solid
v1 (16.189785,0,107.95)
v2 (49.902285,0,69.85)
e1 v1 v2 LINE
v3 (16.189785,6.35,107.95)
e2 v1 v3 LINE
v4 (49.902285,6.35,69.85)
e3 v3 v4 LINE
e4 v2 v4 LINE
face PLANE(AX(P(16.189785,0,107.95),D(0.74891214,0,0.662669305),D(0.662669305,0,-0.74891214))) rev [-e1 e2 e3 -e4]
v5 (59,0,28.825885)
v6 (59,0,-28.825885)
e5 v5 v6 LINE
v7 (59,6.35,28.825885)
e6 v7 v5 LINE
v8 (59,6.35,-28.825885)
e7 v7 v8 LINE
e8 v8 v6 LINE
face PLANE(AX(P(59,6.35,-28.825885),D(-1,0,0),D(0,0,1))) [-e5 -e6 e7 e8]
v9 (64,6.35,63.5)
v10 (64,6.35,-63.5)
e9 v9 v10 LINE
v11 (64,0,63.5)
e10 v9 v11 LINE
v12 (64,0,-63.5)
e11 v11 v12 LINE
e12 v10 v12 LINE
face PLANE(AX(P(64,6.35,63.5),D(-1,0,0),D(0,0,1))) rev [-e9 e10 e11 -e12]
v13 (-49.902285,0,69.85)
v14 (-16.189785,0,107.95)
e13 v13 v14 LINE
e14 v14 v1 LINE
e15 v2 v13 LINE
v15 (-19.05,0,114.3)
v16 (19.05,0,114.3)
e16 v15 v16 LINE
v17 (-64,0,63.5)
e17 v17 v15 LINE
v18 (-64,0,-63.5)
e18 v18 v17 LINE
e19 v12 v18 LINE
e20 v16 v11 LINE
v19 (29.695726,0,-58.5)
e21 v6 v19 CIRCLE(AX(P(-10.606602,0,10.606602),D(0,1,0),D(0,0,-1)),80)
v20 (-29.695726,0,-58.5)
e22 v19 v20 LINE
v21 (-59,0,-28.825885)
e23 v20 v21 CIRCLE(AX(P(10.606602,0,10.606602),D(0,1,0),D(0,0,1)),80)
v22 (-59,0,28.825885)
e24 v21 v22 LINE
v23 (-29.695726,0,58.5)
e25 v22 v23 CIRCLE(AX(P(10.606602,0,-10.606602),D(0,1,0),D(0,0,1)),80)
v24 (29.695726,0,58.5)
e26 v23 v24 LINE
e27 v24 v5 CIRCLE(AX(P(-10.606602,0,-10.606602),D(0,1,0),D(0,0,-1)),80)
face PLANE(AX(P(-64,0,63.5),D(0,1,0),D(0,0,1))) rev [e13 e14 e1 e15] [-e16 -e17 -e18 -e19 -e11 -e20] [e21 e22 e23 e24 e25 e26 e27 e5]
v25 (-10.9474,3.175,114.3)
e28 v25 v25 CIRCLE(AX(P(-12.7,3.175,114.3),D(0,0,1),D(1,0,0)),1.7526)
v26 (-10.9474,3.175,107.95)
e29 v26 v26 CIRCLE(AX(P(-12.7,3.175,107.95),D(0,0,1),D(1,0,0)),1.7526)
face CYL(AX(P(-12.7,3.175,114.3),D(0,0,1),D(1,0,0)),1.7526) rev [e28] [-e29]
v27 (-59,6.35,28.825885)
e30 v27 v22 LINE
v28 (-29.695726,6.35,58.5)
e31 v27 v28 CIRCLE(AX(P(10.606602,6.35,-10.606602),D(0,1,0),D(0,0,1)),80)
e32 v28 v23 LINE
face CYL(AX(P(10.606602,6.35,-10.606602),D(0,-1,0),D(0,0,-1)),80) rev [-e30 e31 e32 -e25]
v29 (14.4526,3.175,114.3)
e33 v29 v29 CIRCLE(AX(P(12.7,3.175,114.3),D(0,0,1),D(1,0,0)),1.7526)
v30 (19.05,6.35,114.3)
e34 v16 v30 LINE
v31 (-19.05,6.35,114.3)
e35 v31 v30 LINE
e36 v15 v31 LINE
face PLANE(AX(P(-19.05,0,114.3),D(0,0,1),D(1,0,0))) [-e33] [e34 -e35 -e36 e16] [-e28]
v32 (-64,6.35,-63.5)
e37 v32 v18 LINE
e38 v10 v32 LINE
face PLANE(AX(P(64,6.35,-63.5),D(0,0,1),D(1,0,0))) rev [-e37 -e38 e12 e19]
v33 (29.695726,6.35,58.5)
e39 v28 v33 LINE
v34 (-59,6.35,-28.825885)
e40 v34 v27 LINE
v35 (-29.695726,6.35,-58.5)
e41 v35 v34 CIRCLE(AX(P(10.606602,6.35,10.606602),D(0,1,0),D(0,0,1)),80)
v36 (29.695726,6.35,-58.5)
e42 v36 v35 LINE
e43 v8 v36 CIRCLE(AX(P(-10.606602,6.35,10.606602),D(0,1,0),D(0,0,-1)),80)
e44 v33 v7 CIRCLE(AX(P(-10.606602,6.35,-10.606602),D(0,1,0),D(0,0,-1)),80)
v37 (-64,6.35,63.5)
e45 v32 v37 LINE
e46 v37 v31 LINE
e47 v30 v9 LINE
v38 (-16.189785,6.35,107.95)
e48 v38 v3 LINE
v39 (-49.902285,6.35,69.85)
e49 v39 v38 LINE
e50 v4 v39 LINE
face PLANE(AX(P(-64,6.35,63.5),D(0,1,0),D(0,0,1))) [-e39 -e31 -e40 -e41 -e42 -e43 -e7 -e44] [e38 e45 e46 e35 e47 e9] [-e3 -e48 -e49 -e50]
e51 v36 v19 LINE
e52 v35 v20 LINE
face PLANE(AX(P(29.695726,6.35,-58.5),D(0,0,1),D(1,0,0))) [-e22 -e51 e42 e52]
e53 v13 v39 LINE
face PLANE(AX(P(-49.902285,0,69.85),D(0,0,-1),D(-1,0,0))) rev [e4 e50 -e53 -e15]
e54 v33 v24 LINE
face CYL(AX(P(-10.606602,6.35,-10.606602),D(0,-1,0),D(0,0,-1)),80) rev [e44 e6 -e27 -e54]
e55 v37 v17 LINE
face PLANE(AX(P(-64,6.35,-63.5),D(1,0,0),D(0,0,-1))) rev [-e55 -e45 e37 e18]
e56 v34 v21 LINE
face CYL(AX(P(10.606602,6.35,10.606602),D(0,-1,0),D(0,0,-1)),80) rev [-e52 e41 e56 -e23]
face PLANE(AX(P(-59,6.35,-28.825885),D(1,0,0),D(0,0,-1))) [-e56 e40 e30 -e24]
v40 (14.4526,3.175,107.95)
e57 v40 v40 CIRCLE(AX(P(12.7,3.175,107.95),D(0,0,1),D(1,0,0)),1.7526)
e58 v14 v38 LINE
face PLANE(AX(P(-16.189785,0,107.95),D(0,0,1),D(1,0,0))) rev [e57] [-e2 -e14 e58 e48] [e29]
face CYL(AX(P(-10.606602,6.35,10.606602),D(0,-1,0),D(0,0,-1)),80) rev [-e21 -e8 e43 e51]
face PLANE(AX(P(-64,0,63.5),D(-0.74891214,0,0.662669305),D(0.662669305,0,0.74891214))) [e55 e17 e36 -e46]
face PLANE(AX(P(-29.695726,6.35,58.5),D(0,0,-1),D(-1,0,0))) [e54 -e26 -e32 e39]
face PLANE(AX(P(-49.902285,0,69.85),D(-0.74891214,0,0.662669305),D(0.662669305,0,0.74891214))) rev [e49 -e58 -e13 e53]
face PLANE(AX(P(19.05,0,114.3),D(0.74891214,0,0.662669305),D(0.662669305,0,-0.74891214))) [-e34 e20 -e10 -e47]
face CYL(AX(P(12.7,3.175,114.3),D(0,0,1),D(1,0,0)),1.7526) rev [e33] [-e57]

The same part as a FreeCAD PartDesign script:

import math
import FreeCAD as App
import Part
import Sketcher
Q = App.Units.Quantity

doc = App.newDocument("Part")
body = doc.addObject("PartDesign::Body", "Body")

# Sketch on XZ plane
sketch1 = body.newObject("Sketcher::SketchObject", "Sketch")
sketch1.AttachmentSupport = (doc.getObject("XZ_Plane"), [""])
sketch1.MapMode = "FlatFace"
sketch1.addGeometry([
    Part.LineSegment(App.Vector(-64, -64, 0), App.Vector(-64, 64, 0)),  # 0
    Part.LineSegment(App.Vector(-64, 64, 0), App.Vector(64, 64, 0)),  # 1
    Part.LineSegment(App.Vector(64, 64, 0), App.Vector(64, -64, 0)),  # 2
    Part.LineSegment(App.Vector(64, -64, 0), App.Vector(-64, -64, 0)),  # 3
    Part.LineSegment(App.Vector(-30, -58, 0), App.Vector(30, -58, 0)),  # 4
    Part.ArcOfCircle(Part.Circle(App.Vector(-11, 11, 0), App.Vector(0, 0, 1), 80), math.radians(-60), math.radians(-30)),  # 5
    Part.LineSegment(App.Vector(59, -29, 0), App.Vector(59, 29, 0)),  # 6
    Part.ArcOfCircle(Part.Circle(App.Vector(-11, -11, 0), App.Vector(0, 0, 1), 80), math.radians(30), math.radians(60)),  # 7
    Part.LineSegment(App.Vector(30, 58, 0), App.Vector(-30, 58, 0)),  # 8
    Part.ArcOfCircle(Part.Circle(App.Vector(11, -11, 0), App.Vector(0, 0, 1), 80), math.radians(120), math.radians(150)),  # 9
    Part.LineSegment(App.Vector(-59, 29, 0), App.Vector(-59, -29, 0)),  # 10
    Part.ArcOfCircle(Part.Circle(App.Vector(11, 11, 0), App.Vector(0, 0, 1), 80), math.radians(-150), math.radians(-120)),  # 11
], False)
sketch1.addConstraint([
    Sketcher.Constraint("Coincident", 0, 2, 1, 1),
    Sketcher.Constraint("Coincident", 1, 2, 2, 1),
    Sketcher.Constraint("Coincident", 2, 2, 3, 1),
    Sketcher.Constraint("Coincident", 3, 2, 0, 1),
    Sketcher.Constraint("Coincident", 4, 2, 5, 1),
    Sketcher.Constraint("Coincident", 5, 2, 6, 1),
    Sketcher.Constraint("Coincident", 6, 2, 7, 1),
    Sketcher.Constraint("Coincident", 7, 2, 8, 1),
    Sketcher.Constraint("Coincident", 8, 2, 9, 1),
    Sketcher.Constraint("Coincident", 9, 2, 10, 1),
    Sketcher.Constraint("Coincident", 10, 2, 11, 1),
    Sketcher.Constraint("Coincident", 11, 2, 4, 1),
    Sketcher.Constraint("Vertical", 0),
    Sketcher.Constraint("Horizontal", 1),
    Sketcher.Constraint("Vertical", 2),
    Sketcher.Constraint("Horizontal", 3),
    Sketcher.Constraint("Horizontal", 4),
    Sketcher.Constraint("Vertical", 6),
    Sketcher.Constraint("Horizontal", 8),
    Sketcher.Constraint("Vertical", 10),
    Sketcher.Constraint("Equal", 5, 7),
    Sketcher.Constraint("Equal", 7, 9),
    Sketcher.Constraint("Equal", 9, 11),
    Sketcher.Constraint("Symmetric", 5, 3, 9, 3, -1, 1),
    Sketcher.Constraint("Symmetric", 7, 3, 11, 3, -1, 1),
    Sketcher.Constraint("Symmetric", 0, 2, 2, 2, -1, 1),
    Sketcher.Constraint("Symmetric", 7, 3, 9, 3, -2),
    Sketcher.Constraint("Horizontal", 6, 2, 9, 2),
    Sketcher.Constraint("Vertical", 4, 2, 7, 2),
    Sketcher.Constraint("DistanceY", 0, 1, 0, 2, Q("5 in")),
    Sketcher.Constraint("Radius", 5, Q("80 mm")),
    Sketcher.Constraint("DistanceX", 1, 1, 1, 2, Q("128 mm")),
    Sketcher.Constraint("DistanceX", 4, 1, 4, 2, Q("59.391451 mm")),
    Sketcher.Constraint("DistanceY", 6, 1, 6, 2, Q("57.65177 mm")),
    Sketcher.Constraint("DistanceX", 5, 3, -1, 1, Q("10.606602 mm")),
    Sketcher.Constraint("DistanceY", -1, 1, 5, 3, Q("10.606602 mm")),
])
pad1 = body.newObject("PartDesign::Pad", "Pad")
pad1.Profile = sketch1
pad1.Length = Q("0.25 in")
pad1.Reversed = True

# Sketch on XZ plane
sketch2 = body.newObject("Sketcher::SketchObject", "Sketch001")
sketch2.AttachmentSupport = (doc.getObject("XZ_Plane"), [""])
sketch2.MapMode = "FlatFace"
sketch2.AttachmentOffset = App.Placement(App.Vector(0, 0, -0.25 * 25.4), App.Rotation())
sketch2.addGeometry([
    Part.LineSegment(App.Vector(-64, 64, 0), App.Vector(-19, 114, 0)),  # 0
    Part.LineSegment(App.Vector(-19, 114, 0), App.Vector(19, 114, 0)),  # 1
    Part.LineSegment(App.Vector(19, 114, 0), App.Vector(64, 64, 0)),  # 2
    Part.LineSegment(App.Vector(64, 64, 0), App.Vector(-64, 64, 0)),  # 3
    Part.LineSegment(App.Vector(-16, 108, 0), App.Vector(-50, 70, 0)),  # 4
    Part.LineSegment(App.Vector(-50, 70, 0), App.Vector(50, 70, 0)),  # 5
    Part.LineSegment(App.Vector(50, 70, 0), App.Vector(16, 108, 0)),  # 6
    Part.LineSegment(App.Vector(16, 108, 0), App.Vector(-16, 108, 0)),  # 7
], False)
sketch2.addConstraint([
    Sketcher.Constraint("Coincident", 0, 2, 1, 1),
    Sketcher.Constraint("Coincident", 1, 2, 2, 1),
    Sketcher.Constraint("Coincident", 2, 2, 3, 1),
    Sketcher.Constraint("Coincident", 3, 2, 0, 1),
    Sketcher.Constraint("Coincident", 4, 2, 5, 1),
    Sketcher.Constraint("Coincident", 5, 2, 6, 1),
    Sketcher.Constraint("Coincident", 6, 2, 7, 1),
    Sketcher.Constraint("Coincident", 7, 2, 4, 1),
    Sketcher.Constraint("Horizontal", 1),
    Sketcher.Constraint("Horizontal", 3),
    Sketcher.Constraint("Horizontal", 5),
    Sketcher.Constraint("Horizontal", 7),
    Sketcher.Constraint("Parallel", 0, 4),
    Sketcher.Constraint("Parallel", 2, 6),
    Sketcher.Constraint("Equal", 0, 2),
    Sketcher.Constraint("DistanceX", 1, 1, 1, 2, Q("1.5 in")),
    Sketcher.Constraint("DistanceY", 2, 2, 1, 2, Q("2 in")),
    Sketcher.Constraint("DistanceY", -1, 1, 0, 2, Q("4.5 in")),
    Sketcher.Constraint("DistanceY", 5, 2, 6, 2, Q("1.5 in")),
    Sketcher.Constraint("DistanceX", 0, 2, -1, 1, Q("0.75 in")),
    Sketcher.Constraint("DistanceY", -1, 1, 4, 2, Q("2.75 in")),
    Sketcher.Constraint("DistanceX", 3, 2, 3, 1, Q("128 mm")),
    Sketcher.Constraint("DistanceX", 5, 1, 5, 2, Q("99.80457 mm")),
    Sketcher.Constraint("DistanceX", 4, 2, -1, 1, Q("49.902285 mm")),
])
pad2 = body.newObject("PartDesign::Pad", "Pad001")
pad2.Profile = sketch2
pad2.Length = Q("0.25 in")

# Sketch on XY plane
sketch3 = body.newObject("Sketcher::SketchObject", "Sketch002")
sketch3.AttachmentSupport = (doc.getObject("XY_Plane"), [""])
sketch3.MapMode = "FlatFace"
sketch3.AttachmentOffset = App.Placement(App.Vector(0, 0, 4.5 * 25.4), App.Rotation())
sketch3.addGeometry([
    Part.Circle(App.Vector(-12.7, 3.2, 0), App.Vector(0, 0, 1), 1.4),
    Part.Circle(App.Vector(12.7, 3.2, 0), App.Vector(0, 0, 1), 1.4),
], False)
sketch3.addConstraint([
    Sketcher.Constraint("Equal", 0, 1),
    Sketcher.Constraint("Symmetric", 0, 3, 1, 3, -2),
    Sketcher.Constraint("DistanceX", 0, 3, 1, 3, Q("1 in")),
    Sketcher.Constraint("Diameter", 0, Q("0.1065 in")),
    Sketcher.Constraint("DistanceY", -1, 1, 0, 3, Q("0.125 in")),
])
doc.recompute()
hole = body.newObject("PartDesign::Hole", "Hole")
hole.Profile = sketch3
hole.ThreadType = "None"
hole.Diameter = Q("0.1065 in")
hole.DepthType = "Dimension"
hole.Depth = Q("0.37 in")
hole.DrillPoint = "Angled"
hole.DrillPointAngle = 118
hole.HoleCutType = "Counterbore"
hole.HoleCutDiameter = Q("0.138 in")
hole.HoleCutDepth = Q("0.28 in")

doc.recompute()
